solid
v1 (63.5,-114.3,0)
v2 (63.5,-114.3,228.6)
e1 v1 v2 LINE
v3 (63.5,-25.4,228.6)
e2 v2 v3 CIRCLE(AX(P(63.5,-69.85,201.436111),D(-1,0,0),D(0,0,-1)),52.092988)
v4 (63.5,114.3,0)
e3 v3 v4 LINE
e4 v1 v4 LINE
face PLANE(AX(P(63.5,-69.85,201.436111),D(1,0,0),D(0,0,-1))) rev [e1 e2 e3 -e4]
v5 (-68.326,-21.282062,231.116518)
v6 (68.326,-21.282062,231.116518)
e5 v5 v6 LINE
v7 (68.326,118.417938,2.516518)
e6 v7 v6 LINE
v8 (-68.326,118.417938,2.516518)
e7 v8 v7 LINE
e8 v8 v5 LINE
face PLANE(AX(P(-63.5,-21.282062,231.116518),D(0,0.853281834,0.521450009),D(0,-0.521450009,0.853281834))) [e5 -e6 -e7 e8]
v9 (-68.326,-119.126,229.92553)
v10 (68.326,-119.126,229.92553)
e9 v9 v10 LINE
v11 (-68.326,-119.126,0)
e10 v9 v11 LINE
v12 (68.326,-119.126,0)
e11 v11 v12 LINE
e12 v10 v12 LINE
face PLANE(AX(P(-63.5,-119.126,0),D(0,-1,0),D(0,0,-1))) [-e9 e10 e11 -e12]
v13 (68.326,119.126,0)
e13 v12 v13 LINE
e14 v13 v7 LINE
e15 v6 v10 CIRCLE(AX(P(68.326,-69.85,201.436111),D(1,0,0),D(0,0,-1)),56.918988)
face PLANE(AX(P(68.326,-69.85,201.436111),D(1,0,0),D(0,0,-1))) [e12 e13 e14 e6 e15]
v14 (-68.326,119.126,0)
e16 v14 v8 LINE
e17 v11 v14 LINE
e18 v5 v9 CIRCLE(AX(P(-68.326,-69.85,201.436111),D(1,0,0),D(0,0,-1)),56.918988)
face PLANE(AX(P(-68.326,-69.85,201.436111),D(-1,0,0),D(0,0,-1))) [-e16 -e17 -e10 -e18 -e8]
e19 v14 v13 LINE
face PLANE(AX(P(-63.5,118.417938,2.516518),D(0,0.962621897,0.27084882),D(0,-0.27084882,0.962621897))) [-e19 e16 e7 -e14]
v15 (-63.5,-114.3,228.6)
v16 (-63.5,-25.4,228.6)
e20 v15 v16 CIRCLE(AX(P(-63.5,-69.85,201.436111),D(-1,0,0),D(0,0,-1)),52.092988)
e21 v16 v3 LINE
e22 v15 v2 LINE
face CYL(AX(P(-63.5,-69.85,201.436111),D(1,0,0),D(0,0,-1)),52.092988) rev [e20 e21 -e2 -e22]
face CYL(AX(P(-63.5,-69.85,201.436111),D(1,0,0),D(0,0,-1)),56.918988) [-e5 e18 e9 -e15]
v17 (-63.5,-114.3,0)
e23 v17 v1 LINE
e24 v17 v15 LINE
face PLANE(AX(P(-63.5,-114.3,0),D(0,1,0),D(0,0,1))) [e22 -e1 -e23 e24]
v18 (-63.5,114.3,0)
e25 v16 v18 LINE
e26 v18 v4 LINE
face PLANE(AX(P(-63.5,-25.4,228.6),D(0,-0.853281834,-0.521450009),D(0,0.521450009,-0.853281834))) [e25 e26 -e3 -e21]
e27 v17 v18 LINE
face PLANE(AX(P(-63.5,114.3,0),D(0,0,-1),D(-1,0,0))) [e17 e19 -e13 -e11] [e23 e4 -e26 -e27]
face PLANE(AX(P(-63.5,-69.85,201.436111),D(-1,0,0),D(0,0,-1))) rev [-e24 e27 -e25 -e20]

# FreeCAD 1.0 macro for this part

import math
import FreeCAD as App
import Part
import Sketcher
Q = App.Units.Quantity

doc = App.newDocument("Part")
body = doc.addObject("PartDesign::Body", "Body")

# Sketch on YZ plane
sketch1 = body.newObject("Sketcher::SketchObject", "Sketch")
sketch1.AttachmentSupport = (doc.getObject("YZ_Plane"), [""])
sketch1.MapMode = "FlatFace"
sketch1.addGeometry([
    Part.LineSegment(App.Vector(-114.3, 0, 0), App.Vector(-114.3, 228.6, 0)),  # 0
    Part.ArcOfCircle(Part.Circle(App.Vector(-69.8, 201.4, 0), App.Vector(0, 0, 1), 52.1), math.radians(31), math.radians(149)),  # 1
    Part.LineSegment(App.Vector(-25.4, 228.6, 0), App.Vector(114.3, 0, 0)),  # 2
    Part.LineSegment(App.Vector(114.3, 0, 0), App.Vector(119.1, 0, 0)),  # 3
    Part.LineSegment(App.Vector(119.1, 0, 0), App.Vector(118.4, 2.5, 0)),  # 4
    Part.LineSegment(App.Vector(118.4, 2.5, 0), App.Vector(-21.3, 231.1, 0)),  # 5
    Part.ArcOfCircle(Part.Circle(App.Vector(-69.8, 201.4, 0), App.Vector(0, 0, 1), 56.9), math.radians(31), math.radians(150)),  # 6
    Part.LineSegment(App.Vector(-119.1, 229.9, 0), App.Vector(-119.1, 0, 0)),  # 7
    Part.LineSegment(App.Vector(-119.1, 0, 0), App.Vector(-114.3, 0, 0)),  # 8
], False)
sketch1.addConstraint([
    Sketcher.Constraint("Coincident", 0, 2, 1, 2),
    Sketcher.Constraint("Tangent", 1, 1, 2, 1),
    Sketcher.Constraint("Coincident", 2, 2, 3, 1),
    Sketcher.Constraint("Coincident", 3, 2, 4, 1),
    Sketcher.Constraint("Coincident", 4, 2, 5, 1),
    Sketcher.Constraint("Tangent", 5, 2, 6, 1),
    Sketcher.Constraint("Coincident", 6, 2, 7, 1),
    Sketcher.Constraint("Coincident", 7, 2, 8, 1),
    Sketcher.Constraint("Coincident", 8, 2, 0, 1),
    Sketcher.Constraint("Vertical", 0),
    Sketcher.Constraint("Horizontal", 3),
    Sketcher.Constraint("Vertical", 7),
    Sketcher.Constraint("Horizontal", 8),
    Sketcher.Constraint("Coincident", 6, 3, 1, 3),
    Sketcher.Constraint("Symmetric", 3, 2, 7, 2, -1, 1),
    Sketcher.Constraint("Symmetric", 2, 2, 8, 2, -2),
    Sketcher.Constraint("Parallel", 2, 5),
    Sketcher.Constraint("Horizontal", 0, 2, 1, 1),
    Sketcher.Constraint("Equal", 2, 5),
    Sketcher.Constraint("DistanceY", 0, 1, 0, 2, Q("9 in")),
    Sketcher.Constraint("DistanceX", 1, 1, -1, 1, Q("1 in")),
    Sketcher.Constraint("DistanceX", 0, 2, 2, 2, Q("9 in")),
    Sketcher.Constraint("DistanceX", 3, 1, 3, 2, Q("0.19 in")),
    Sketcher.Constraint("Radius", 6, Q("56.918988 mm")),
])
pad1 = body.newObject("PartDesign::Pad", "Pad")
pad1.Profile = sketch1
pad1.Type = "TwoLengths"
pad1.Length = Q("2.5 in")
pad1.Length2 = Q("2.5 in")

# Sketch on YZ plane
sketch2 = body.newObject("Sketcher::SketchObject", "Sketch001")
sketch2.AttachmentSupport = (doc.getObject("YZ_Plane"), [""])
sketch2.MapMode = "FlatFace"
sketch2.AttachmentOffset = App.Placement(App.Vector(0, 0, 2.5 * 25.4), App.Rotation())
sketch2.addGeometry([
    Part.LineSegment(App.Vector(-119.1, 229.9, 0), App.Vector(-119.1, 0, 0)),  # 0
    Part.LineSegment(App.Vector(-119.1, 0, 0), App.Vector(119.1, 0, 0)),  # 1
    Part.LineSegment(App.Vector(119.1, 0, 0), App.Vector(118.4, 2.5, 0)),  # 2
    Part.LineSegment(App.Vector(118.4, 2.5, 0), App.Vector(-21.3, 231.1, 0)),  # 3
    Part.ArcOfCircle(Part.Circle(App.Vector(-69.8, 201.4, 0), App.Vector(0, 0, 1), 56.9), math.radians(31), math.radians(150)),  # 4
], False)
sketch2.addConstraint([
    Sketcher.Constraint("Coincident", 0, 2, 1, 1),
    Sketcher.Constraint("Coincident", 1, 2, 2, 1),
    Sketcher.Constraint("Coincident", 2, 2, 3, 1),
    Sketcher.Constraint("Tangent", 3, 2, 4, 1),
    Sketcher.Constraint("Coincident", 4, 2, 0, 1),
    Sketcher.Constraint("Vertical", 0),
    Sketcher.Constraint("Horizontal", 1),
    Sketcher.Constraint("Symmetric", 0, 2, 1, 2, -1, 1),
    Sketcher.Constraint("DistanceY", 2, 2, 3, 2, Q("9 in")),
    Sketcher.Constraint("DistanceX", 1, 1, 1, 2, Q("9.38 in")),
    Sketcher.Constraint("DistanceX", 3, 2, 2, 2, Q("5.5 in")),
    Sketcher.Constraint("DistanceX", 4, 3, -1, 1, Q("2.75 in")),
    Sketcher.Constraint("Radius", 4, Q("56.918988 mm")),
    Sketcher.Constraint("DistanceY", 0, 2, 0, 1, Q("229.92553 mm")),
])
pad2 = body.newObject("PartDesign::Pad", "Pad001")
pad2.Profile = sketch2
pad2.Length = Q("0.19 in")
doc.recompute()

mirrored = body.newObject("PartDesign::Mirrored", "Mirrored")
mirrored.Originals = [pad2]
mirrored.MirrorPlane = (doc.getObject("YZ_Plane"), [""])
body.Tip = mirrored

doc.recompute()
